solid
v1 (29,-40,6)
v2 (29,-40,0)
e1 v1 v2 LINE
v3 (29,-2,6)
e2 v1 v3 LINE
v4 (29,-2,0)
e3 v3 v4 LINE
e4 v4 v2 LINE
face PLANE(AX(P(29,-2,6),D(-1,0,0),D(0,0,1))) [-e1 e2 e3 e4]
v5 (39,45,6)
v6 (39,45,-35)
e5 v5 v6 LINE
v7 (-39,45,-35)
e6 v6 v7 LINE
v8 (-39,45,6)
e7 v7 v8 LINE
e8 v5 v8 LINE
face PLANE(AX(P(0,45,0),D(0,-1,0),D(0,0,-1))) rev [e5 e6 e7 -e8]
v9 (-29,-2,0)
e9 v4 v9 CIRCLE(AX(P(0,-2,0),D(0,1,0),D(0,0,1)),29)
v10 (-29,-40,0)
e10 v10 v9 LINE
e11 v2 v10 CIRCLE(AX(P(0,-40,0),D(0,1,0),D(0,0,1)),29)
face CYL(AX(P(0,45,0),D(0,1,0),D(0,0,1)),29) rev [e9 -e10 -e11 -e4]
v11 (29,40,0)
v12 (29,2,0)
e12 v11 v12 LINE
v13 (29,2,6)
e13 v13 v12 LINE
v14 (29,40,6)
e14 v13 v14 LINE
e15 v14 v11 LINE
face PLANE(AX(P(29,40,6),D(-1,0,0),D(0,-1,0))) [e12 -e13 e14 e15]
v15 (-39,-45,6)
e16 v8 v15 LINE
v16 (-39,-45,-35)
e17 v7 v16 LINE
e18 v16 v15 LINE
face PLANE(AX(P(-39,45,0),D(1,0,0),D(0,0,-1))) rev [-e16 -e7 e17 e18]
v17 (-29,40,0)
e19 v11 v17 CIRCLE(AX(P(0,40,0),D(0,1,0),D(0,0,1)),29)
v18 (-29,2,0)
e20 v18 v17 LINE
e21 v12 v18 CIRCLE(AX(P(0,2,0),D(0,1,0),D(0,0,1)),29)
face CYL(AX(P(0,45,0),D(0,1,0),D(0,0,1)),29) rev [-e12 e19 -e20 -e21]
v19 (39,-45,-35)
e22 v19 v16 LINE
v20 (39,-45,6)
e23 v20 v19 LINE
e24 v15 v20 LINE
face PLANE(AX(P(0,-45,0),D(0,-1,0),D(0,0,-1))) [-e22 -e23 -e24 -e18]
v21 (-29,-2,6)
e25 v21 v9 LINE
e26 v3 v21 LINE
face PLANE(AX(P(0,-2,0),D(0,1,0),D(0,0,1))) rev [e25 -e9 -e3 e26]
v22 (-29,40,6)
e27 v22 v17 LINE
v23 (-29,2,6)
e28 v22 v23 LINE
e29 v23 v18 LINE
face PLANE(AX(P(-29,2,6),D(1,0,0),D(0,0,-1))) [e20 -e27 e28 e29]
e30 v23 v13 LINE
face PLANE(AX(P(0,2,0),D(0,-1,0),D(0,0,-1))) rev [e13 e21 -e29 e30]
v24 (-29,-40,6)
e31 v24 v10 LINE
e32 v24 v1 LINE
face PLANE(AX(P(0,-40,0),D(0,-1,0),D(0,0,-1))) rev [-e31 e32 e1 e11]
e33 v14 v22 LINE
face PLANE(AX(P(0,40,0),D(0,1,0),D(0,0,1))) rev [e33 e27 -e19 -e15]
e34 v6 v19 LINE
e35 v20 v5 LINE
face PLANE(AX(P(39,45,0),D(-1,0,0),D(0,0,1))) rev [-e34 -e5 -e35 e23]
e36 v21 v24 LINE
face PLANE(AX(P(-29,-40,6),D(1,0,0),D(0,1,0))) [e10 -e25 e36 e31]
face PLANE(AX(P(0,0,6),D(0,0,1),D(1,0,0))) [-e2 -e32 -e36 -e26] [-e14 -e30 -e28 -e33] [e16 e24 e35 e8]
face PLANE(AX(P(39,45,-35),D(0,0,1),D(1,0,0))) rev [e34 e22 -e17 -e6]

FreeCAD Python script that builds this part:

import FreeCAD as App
import Part
import Sketcher
Q = App.Units.Quantity

doc = App.newDocument("Part")
params = doc.addObject("Spreadsheet::Sheet", "Params")
for row, (alias, value) in enumerate([
    ("sketch1_width", "78 mm"),
    ("sketch1_height", "35 mm"),
    ("pad1_length", "90 mm"),
    ("sketch2_width", "29 mm"),
    ("sketch2_height", "38 mm"),
    ("groove_angle", "360 deg"),
    ("sketch3_width", "78 mm"),
    ("sketch3_width2", "58 mm"),
    ("sketch3_height", "90 mm"),
    ("sketch3_height2", "38 mm"),
    ("pad2_length", "6 mm"),
], start=1):
    params.set(f"A{row}", alias)
    params.set(f"B{row}", "=" + value)
    params.setAlias(f"B{row}", alias)

body = doc.addObject("PartDesign::Body", "Body")

# Sketch on XZ plane
sketch1 = body.newObject("Sketcher::SketchObject", "Sketch")
sketch1.AttachmentSupport = (doc.getObject("XZ_Plane"), [""])
sketch1.MapMode = "FlatFace"
sketch1.addGeometry([
    Part.LineSegment(App.Vector(-39, 0, 0), App.Vector(39, 0, 0)),
    Part.LineSegment(App.Vector(39, 0, 0), App.Vector(39, -35, 0)),
    Part.LineSegment(App.Vector(39, -35, 0), App.Vector(-39, -35, 0)),
    Part.LineSegment(App.Vector(-39, -35, 0), App.Vector(-39, 0, 0)),
], False)
sketch1.addConstraint([
    Sketcher.Constraint("Coincident", 0, 2, 1, 1),
    Sketcher.Constraint("Coincident", 1, 2, 2, 1),
    Sketcher.Constraint("Coincident", 2, 2, 3, 1),
    Sketcher.Constraint("Coincident", 3, 2, 0, 1),
    Sketcher.Constraint("Horizontal", 0),
    Sketcher.Constraint("Vertical", 1),
    Sketcher.Constraint("Horizontal", 2),
    Sketcher.Constraint("Vertical", 3),
    Sketcher.Constraint("Symmetric", 0, 2, 3, 2, -1, 1),
    Sketcher.Constraint("DistanceX", 0, 1, 0, 2, Q("78 mm")),
    Sketcher.Constraint("DistanceY", 1, 2, 1, 1, Q("35 mm")),
])
sketch1.setExpression("Constraints[9]", "Params.sketch1_width")
sketch1.setExpression("Constraints[10]", "Params.sketch1_height")
pad1 = body.newObject("PartDesign::Pad", "Pad")
pad1.Profile = sketch1
pad1.setExpression("Length", "Params.pad1_length")
pad1.Midplane = True

# Sketch on XY plane
sketch2 = body.newObject("Sketcher::SketchObject", "Sketch001")
sketch2.AttachmentSupport = (doc.getObject("XY_Plane"), [""])
sketch2.MapMode = "FlatFace"
sketch2.addGeometry([
    Part.LineSegment(App.Vector(-29, -2, 0), App.Vector(-29, -40, 0)),  # 0
    Part.LineSegment(App.Vector(-29, -40, 0), App.Vector(0, -40, 0)),  # 1
    Part.LineSegment(App.Vector(0, -40, 0), App.Vector(0, -2, 0)),  # 2
    Part.LineSegment(App.Vector(0, -2, 0), App.Vector(-29, -2, 0)),  # 3
    Part.LineSegment(App.Vector(-29, 40, 0), App.Vector(-29, 2, 0)),  # 4
    Part.LineSegment(App.Vector(-29, 2, 0), App.Vector(0, 2, 0)),  # 5
    Part.LineSegment(App.Vector(0, 2, 0), App.Vector(0, 40, 0)),  # 6
    Part.LineSegment(App.Vector(0, 40, 0), App.Vector(-29, 40, 0)),  # 7
], False)
sketch2.addConstraint([
    Sketcher.Constraint("Coincident", 0, 2, 1, 1),
    Sketcher.Constraint("Coincident", 1, 2, 2, 1),
    Sketcher.Constraint("Coincident", 2, 2, 3, 1),
    Sketcher.Constraint("Coincident", 3, 2, 0, 1),
    Sketcher.Constraint("Coincident", 4, 2, 5, 1),
    Sketcher.Constraint("Coincident", 5, 2, 6, 1),
    Sketcher.Constraint("Coincident", 6, 2, 7, 1),
    Sketcher.Constraint("Coincident", 7, 2, 4, 1),
    Sketcher.Constraint("Vertical", 0),
    Sketcher.Constraint("Horizontal", 1),
    Sketcher.Constraint("Vertical", 2),
    Sketcher.Constraint("Horizontal", 3),
    Sketcher.Constraint("Vertical", 4),
    Sketcher.Constraint("Horizontal", 5),
    Sketcher.Constraint("Vertical", 6),
    Sketcher.Constraint("Horizontal", 7),
    Sketcher.Constraint("Symmetric", 2, 2, 5, 2, -1, 1),
    Sketcher.Constraint("Symmetric", 1, 2, 6, 2, -1),
    Sketcher.Constraint("Vertical", 3, 2, 4, 2),
    Sketcher.Constraint("DistanceX", 1, 1, 1, 2, Q("29 mm")),
    Sketcher.Constraint("DistanceY", 0, 2, 0, 1, Q("38 mm")),
    Sketcher.Constraint("DistanceY", 0, 2, -1, 1, Q("40 mm")),
])
sketch2.setExpression("Constraints[19]", "Params.sketch2_width")
sketch2.setExpression("Constraints[20]", "Params.sketch2_height")
groove = body.newObject("PartDesign::Groove", "Groove")
groove.Profile = sketch2
groove.ReferenceAxis = (sketch2, ["V_Axis"])
groove.setExpression("Angle", "Params.groove_angle")

# Sketch on XY plane
sketch3 = body.newObject("Sketcher::SketchObject", "Sketch002")
sketch3.AttachmentSupport = (doc.getObject("XY_Plane"), [""])
sketch3.MapMode = "FlatFace"
sketch3.addGeometry([
    Part.LineSegment(App.Vector(-39, 45, 0), App.Vector(-39, -45, 0)),  # 0
    Part.LineSegment(App.Vector(-39, -45, 0), App.Vector(39, -45, 0)),  # 1
    Part.LineSegment(App.Vector(39, -45, 0), App.Vector(39, 45, 0)),  # 2
    Part.LineSegment(App.Vector(39, 45, 0), App.Vector(-39, 45, 0)),  # 3
    Part.LineSegment(App.Vector(29, -40, 0), App.Vector(-29, -40, 0)),  # 4
    Part.LineSegment(App.Vector(-29, -40, 0), App.Vector(-29, -2, 0)),  # 5
    Part.LineSegment(App.Vector(-29, -2, 0), App.Vector(29, -2, 0)),  # 6
    Part.LineSegment(App.Vector(29, -2, 0), App.Vector(29, -40, 0)),  # 7
    Part.LineSegment(App.Vector(29, 2, 0), App.Vector(-29, 2, 0)),  # 8
    Part.LineSegment(App.Vector(-29, 2, 0), App.Vector(-29, 40, 0)),  # 9
    Part.LineSegment(App.Vector(-29, 40, 0), App.Vector(29, 40, 0)),  # 10
    Part.LineSegment(App.Vector(29, 40, 0), App.Vector(29, 2, 0)),  # 11
], False)
sketch3.addConstraint([
    Sketcher.Constraint("Coincident", 0, 2, 1, 1),
    Sketcher.Constraint("Coincident", 1, 2, 2, 1),
    Sketcher.Constraint("Coincident", 2, 2, 3, 1),
    Sketcher.Constraint("Coincident", 3, 2, 0, 1),
    Sketcher.Constraint("Coincident", 4, 2, 5, 1),
    Sketcher.Constraint("Coincident", 5, 2, 6, 1),
    Sketcher.Constraint("Coincident", 6, 2, 7, 1),
    Sketcher.Constraint("Coincident", 7, 2, 4, 1),
    Sketcher.Constraint("Coincident", 8, 2, 9, 1),
    Sketcher.Constraint("Coincident", 9, 2, 10, 1),
    Sketcher.Constraint("Coincident", 10, 2, 11, 1),
    Sketcher.Constraint("Coincident", 11, 2, 8, 1),
    Sketcher.Constraint("Vertical", 0),
    Sketcher.Constraint("Horizontal", 1),
    Sketcher.Constraint("Vertical", 2),
    Sketcher.Constraint("Horizontal", 3),
    Sketcher.Constraint("Horizontal", 4),
    Sketcher.Constraint("Vertical", 5),
    Sketcher.Constraint("Horizontal", 6),
    Sketcher.Constraint("Vertical", 7),
    Sketcher.Constraint("Horizontal", 8),
    Sketcher.Constraint("Vertical", 9),
    Sketcher.Constraint("Horizontal", 10),
    Sketcher.Constraint("Vertical", 11),
    Sketcher.Constraint("Symmetric", 0, 2, 2, 2, -1, 1),
    Sketcher.Constraint("Symmetric", 6, 2, 8, 2, -1, 1),
    Sketcher.Constraint("Symmetric", 4, 2, 10, 2, -1, 1),
    Sketcher.Constraint("Vertical", 5, 2, 8, 2),
    Sketcher.Constraint("DistanceX", 1, 1, 1, 2, Q("78 mm")),
    Sketcher.Constraint("DistanceX", 4, 2, 4, 1, Q("58 mm")),
    Sketcher.Constraint("DistanceY", 0, 2, 0, 1, Q("90 mm")),
    Sketcher.Constraint("DistanceY", 5, 1, 5, 2, Q("38 mm")),
    Sketcher.Constraint("DistanceY", 4, 2, -1, 1, Q("40 mm")),
])
sketch3.setExpression("Constraints[28]", "Params.sketch3_width")
sketch3.setExpression("Constraints[29]", "Params.sketch3_width2")
sketch3.setExpression("Constraints[30]", "Params.sketch3_height")
sketch3.setExpression("Constraints[31]", "Params.sketch3_height2")
pad2 = body.newObject("PartDesign::Pad", "Pad001")
pad2.Profile = sketch3
pad2.setExpression("Length", "Params.pad2_length")

doc.recompute()
